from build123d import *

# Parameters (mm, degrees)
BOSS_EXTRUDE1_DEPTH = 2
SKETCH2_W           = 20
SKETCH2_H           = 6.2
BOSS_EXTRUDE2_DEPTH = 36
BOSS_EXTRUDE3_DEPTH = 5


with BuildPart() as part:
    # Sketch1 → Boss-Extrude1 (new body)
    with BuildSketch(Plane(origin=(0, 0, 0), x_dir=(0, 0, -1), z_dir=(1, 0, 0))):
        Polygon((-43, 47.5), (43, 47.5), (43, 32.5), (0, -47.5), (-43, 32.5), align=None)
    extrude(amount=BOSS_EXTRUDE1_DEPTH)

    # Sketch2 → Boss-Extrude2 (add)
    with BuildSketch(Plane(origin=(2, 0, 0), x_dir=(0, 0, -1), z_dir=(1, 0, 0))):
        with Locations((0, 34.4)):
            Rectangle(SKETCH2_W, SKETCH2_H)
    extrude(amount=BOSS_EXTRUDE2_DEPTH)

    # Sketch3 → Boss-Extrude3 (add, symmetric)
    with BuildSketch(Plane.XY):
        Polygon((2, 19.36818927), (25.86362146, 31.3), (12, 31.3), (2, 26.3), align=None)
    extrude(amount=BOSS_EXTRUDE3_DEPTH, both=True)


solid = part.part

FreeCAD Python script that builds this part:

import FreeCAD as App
import Part
import Sketcher
Q = App.Units.Quantity


def add_polygon(sketch, points):
    """Adds a closed chain of lines whose ends are joined by coincident constraints."""
    first, n = sketch.GeometryCount, len(points)
    for a, b in zip(points, points[1:] + points[:1]):
        sketch.addGeometry(Part.LineSegment(App.Vector(*a, 0), App.Vector(*b, 0)), False)
    for i in range(n):
        sketch.addConstraint(Sketcher.Constraint("Coincident", first + i, 2, first + (i + 1) % n, 1))

doc = App.newDocument("Part")
body = doc.addObject("PartDesign::Body", "Body")

# Sketch on YZ plane
sketch1 = doc.addObject("Sketcher::SketchObject", "Sketch")
body.addObject(sketch1)
sketch1.AttachmentSupport = (doc.YZ_Plane, [""])
sketch1.MapMode = "FlatFace"
add_polygon(sketch1, [(48, -43), (48, 43), (32, 43), (-48, 0), (32, -43)])  # lines 0-4
sketch1.addConstraint(Sketcher.Constraint("Vertical", 0))
sketch1.addConstraint(Sketcher.Constraint("Horizontal", 1))
sketch1.addConstraint(Sketcher.Constraint("Horizontal", 4))
sketch1.addConstraint(Sketcher.Constraint("Symmetric", 1, 2, 3, 2, -1))
sketch1.addConstraint(Sketcher.Constraint("PointOnObject", 2, 2, -1))
sketch1.addConstraint(Sketcher.Constraint("DistanceX", 1, 2, 1, 1, Q("15 mm")))
sketch1.addConstraint(Sketcher.Constraint("DistanceY", 0, 1, 0, 2, Q("86 mm")))
sketch1.addConstraint(Sketcher.Constraint("DistanceX", 2, 2, 1, 2, Q("80 mm")))
sketch1.addConstraint(Sketcher.Constraint("DistanceX", -1, 1, 0, 2, Q("47.5 mm")))
pad1 = doc.addObject("PartDesign::Pad", "Pad")
body.addObject(pad1)
pad1.Profile = sketch1
pad1.Length = 2

# Sketch on YZ plane
sketch2 = doc.addObject("Sketcher::SketchObject", "Sketch001")
body.addObject(sketch2)
sketch2.AttachmentSupport = (doc.YZ_Plane, [""])
sketch2.MapMode = "FlatFace"
sketch2.AttachmentOffset = App.Placement(App.Vector(0, 0, 2), App.Rotation())
add_polygon(sketch2, [(38, 10), (31, 10), (31, -10), (38, -10)])  # lines 0-3
sketch2.addConstraint(Sketcher.Constraint("Horizontal", 0))
sketch2.addConstraint(Sketcher.Constraint("Vertical", 1))
sketch2.addConstraint(Sketcher.Constraint("Horizontal", 2))
sketch2.addConstraint(Sketcher.Constraint("Vertical", 3))
sketch2.addConstraint(Sketcher.Constraint("DistanceY", 1, 2, 1, 1, Q("20 mm")))
sketch2.addConstraint(Sketcher.Constraint("DistanceX", 0, 2, 0, 1, Q("6.2 mm")))
sketch2.addConstraint(Sketcher.Constraint("DistanceY", -1, 1, 0, 2, Q("10 mm")))
sketch2.addConstraint(Sketcher.Constraint("DistanceX", -1, 1, 0, 2, Q("31.3 mm")))
pad2 = doc.addObject("PartDesign::Pad", "Pad001")
body.addObject(pad2)
pad2.Profile = sketch2
pad2.Length = 36

# Sketch on XY plane
sketch3 = doc.addObject("Sketcher::SketchObject", "Sketch002")
body.addObject(sketch3)
sketch3.AttachmentSupport = (doc.XY_Plane, [""])
sketch3.MapMode = "FlatFace"
add_polygon(sketch3, [(2, 19), (26, 31), (12, 31), (2, 26)])  # lines 0-3
sketch3.addConstraint(Sketcher.Constraint("Horizontal", 1))
sketch3.addConstraint(Sketcher.Constraint("Vertical", 3))
sketch3.addConstraint(Sketcher.Constraint("Parallel", 0, 2))
sketch3.addConstraint(Sketcher.Constraint("DistanceX", -1, 1, 1, 2, Q("12 mm")))
sketch3.addConstraint(Sketcher.Constraint("DistanceX", -1, 1, 2, 2, Q("2 mm")))
sketch3.addConstraint(Sketcher.Constraint("DistanceY", 2, 2, 1, 2, Q("5 mm")))
sketch3.addConstraint(Sketcher.Constraint("DistanceY", -1, 1, 0, 2, Q("31.3 mm")))
sketch3.addConstraint(Sketcher.Constraint("DistanceX", 1, 2, 1, 1, Q("13.863621 mm")))
pad3 = doc.addObject("PartDesign::Pad", "Pad002")
body.addObject(pad3)
pad3.Profile = sketch3
pad3.Length = 10
pad3.Midplane = True

doc.recompute()
